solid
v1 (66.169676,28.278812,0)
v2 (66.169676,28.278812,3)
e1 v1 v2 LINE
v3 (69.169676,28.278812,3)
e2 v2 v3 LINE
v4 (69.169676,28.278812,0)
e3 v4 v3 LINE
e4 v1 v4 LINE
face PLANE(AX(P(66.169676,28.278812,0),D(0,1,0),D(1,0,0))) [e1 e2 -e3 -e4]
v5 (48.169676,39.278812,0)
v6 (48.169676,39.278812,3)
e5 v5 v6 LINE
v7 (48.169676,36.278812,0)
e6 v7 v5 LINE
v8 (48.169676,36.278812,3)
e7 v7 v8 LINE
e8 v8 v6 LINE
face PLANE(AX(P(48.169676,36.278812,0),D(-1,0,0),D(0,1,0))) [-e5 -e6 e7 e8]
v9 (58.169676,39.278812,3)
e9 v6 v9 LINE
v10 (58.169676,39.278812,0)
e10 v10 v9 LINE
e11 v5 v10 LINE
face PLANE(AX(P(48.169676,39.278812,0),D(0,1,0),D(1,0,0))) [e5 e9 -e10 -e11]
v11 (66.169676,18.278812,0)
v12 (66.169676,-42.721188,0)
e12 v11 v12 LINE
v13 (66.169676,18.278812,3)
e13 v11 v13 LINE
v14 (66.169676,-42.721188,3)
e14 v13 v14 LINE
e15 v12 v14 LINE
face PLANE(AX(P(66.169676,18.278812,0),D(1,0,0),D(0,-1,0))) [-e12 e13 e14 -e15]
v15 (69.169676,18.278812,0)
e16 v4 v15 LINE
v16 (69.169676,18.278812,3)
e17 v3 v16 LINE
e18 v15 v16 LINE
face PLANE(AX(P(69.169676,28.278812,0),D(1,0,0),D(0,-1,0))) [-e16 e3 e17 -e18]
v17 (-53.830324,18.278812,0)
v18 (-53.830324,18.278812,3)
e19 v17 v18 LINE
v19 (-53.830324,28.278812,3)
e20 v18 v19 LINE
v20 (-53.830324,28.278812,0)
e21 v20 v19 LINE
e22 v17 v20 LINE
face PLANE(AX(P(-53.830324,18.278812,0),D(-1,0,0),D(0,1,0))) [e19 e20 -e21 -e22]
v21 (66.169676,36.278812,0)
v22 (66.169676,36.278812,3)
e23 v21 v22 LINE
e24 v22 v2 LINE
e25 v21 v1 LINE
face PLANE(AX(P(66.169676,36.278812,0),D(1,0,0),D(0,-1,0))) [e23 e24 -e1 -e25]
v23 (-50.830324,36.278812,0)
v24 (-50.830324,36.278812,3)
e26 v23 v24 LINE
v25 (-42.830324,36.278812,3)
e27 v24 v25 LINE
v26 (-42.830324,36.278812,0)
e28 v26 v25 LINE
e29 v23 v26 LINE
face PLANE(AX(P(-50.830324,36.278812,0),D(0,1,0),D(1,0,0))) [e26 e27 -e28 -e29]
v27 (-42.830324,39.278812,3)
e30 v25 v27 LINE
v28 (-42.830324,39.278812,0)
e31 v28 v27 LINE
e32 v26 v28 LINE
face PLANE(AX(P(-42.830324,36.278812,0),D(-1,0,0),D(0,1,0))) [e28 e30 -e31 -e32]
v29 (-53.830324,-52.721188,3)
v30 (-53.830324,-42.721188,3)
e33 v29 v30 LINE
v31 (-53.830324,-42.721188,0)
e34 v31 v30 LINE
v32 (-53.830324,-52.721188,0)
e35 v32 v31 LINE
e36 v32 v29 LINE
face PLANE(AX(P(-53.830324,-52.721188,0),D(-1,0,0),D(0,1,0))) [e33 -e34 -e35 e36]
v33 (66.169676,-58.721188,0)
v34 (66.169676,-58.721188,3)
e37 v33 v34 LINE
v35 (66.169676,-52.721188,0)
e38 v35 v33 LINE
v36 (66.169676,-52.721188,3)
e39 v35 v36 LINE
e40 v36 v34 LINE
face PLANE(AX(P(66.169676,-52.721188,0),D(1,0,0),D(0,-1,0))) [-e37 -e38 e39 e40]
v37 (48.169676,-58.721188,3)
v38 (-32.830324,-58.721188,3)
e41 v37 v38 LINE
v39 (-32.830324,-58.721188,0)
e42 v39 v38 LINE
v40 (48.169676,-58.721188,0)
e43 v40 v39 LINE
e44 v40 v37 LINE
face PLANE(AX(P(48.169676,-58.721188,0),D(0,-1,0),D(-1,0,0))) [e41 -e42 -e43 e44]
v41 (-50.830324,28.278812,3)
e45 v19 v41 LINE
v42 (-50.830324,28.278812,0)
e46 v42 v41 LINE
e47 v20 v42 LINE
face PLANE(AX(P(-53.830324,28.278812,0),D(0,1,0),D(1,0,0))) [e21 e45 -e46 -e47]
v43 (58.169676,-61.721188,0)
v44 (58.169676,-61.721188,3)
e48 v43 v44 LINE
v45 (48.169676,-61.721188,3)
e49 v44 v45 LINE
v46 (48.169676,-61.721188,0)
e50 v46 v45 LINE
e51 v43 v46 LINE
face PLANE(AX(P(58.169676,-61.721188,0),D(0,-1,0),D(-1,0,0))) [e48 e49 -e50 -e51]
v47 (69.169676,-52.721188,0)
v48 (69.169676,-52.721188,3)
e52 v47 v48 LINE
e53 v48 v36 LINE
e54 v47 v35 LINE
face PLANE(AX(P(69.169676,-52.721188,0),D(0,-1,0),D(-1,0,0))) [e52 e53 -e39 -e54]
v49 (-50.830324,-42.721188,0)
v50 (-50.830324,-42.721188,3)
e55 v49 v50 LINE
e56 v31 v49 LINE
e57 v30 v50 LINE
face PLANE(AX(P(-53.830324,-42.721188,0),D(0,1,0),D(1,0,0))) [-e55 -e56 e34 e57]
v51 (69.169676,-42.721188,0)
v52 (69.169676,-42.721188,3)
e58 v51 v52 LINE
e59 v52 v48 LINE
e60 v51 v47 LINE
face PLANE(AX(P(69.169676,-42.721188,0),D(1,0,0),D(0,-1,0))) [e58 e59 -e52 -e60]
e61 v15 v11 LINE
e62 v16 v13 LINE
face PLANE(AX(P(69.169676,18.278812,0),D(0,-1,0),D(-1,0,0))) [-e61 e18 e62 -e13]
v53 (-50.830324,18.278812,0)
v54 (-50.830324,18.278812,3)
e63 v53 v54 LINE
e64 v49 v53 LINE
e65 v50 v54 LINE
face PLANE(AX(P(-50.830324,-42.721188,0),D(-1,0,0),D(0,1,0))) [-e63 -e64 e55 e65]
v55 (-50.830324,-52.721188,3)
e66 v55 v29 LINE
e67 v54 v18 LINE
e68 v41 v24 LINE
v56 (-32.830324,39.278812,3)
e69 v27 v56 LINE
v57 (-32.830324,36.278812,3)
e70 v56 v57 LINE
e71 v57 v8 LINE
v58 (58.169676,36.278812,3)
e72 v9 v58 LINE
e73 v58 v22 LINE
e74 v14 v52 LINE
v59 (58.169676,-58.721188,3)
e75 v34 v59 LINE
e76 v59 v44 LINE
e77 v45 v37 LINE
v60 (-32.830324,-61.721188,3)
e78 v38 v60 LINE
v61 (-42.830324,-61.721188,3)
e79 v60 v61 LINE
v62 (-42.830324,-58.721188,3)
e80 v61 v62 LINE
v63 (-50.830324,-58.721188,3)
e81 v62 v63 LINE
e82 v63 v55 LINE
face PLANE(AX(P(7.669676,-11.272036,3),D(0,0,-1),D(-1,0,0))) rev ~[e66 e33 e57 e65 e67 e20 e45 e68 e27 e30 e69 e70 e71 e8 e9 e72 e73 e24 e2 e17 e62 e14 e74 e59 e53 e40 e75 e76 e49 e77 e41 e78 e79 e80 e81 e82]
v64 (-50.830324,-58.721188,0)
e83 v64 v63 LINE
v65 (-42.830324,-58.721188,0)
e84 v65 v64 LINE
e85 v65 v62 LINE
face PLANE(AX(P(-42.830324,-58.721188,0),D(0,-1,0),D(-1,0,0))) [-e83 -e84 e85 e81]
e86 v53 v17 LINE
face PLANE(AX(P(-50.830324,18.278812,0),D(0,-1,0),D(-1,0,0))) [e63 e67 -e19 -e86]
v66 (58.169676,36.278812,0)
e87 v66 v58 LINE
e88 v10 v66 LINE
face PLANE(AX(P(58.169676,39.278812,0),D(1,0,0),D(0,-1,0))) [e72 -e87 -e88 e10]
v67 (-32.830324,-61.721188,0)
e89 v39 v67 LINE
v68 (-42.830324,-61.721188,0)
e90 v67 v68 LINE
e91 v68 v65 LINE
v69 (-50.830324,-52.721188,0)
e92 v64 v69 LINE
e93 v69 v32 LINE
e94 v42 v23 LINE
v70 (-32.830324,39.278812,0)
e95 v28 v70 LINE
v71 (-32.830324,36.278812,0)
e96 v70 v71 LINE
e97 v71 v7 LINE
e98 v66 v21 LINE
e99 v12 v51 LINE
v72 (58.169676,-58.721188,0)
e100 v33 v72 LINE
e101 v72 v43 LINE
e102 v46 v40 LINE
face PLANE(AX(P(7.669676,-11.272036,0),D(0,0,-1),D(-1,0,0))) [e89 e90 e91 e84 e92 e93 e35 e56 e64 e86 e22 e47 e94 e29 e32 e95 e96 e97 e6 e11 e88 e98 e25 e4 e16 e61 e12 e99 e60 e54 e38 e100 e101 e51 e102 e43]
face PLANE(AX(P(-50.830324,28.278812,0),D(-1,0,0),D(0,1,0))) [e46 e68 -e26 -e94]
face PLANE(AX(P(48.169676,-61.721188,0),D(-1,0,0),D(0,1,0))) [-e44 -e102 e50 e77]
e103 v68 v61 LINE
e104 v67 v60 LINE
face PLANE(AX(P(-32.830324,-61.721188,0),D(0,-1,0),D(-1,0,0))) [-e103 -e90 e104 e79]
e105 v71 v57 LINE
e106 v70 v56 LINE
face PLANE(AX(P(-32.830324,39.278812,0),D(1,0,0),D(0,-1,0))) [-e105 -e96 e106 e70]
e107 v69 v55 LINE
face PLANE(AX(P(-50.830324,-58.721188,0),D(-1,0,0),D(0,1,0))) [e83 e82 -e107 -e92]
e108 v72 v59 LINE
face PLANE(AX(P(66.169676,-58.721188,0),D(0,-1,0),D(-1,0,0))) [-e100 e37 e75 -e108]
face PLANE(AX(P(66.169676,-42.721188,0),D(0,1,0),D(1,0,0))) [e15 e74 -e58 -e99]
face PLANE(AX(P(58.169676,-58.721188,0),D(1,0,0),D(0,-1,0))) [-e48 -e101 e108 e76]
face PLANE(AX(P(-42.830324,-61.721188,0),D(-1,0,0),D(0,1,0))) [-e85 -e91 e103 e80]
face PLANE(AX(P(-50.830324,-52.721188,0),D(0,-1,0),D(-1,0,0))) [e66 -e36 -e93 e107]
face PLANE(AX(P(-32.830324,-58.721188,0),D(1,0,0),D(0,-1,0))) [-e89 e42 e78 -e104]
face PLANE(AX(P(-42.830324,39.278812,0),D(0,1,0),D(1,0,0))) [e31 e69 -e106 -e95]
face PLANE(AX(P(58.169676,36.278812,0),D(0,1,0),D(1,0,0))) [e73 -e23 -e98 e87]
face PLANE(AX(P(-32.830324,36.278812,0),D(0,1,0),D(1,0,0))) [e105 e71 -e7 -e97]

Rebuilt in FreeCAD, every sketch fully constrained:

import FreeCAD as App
import Part
import Sketcher
Q = App.Units.Quantity

doc = App.newDocument("Part")
body = doc.addObject("PartDesign::Body", "Body")

# Sketch on XY plane
sketch1 = body.newObject("Sketcher::SketchObject", "Sketch")
sketch1.AttachmentSupport = (doc.getObject("XY_Plane"), [""])
sketch1.MapMode = "FlatFace"
sketch1.addGeometry([
    Part.LineSegment(App.Vector(-42.830324, 36.278812, 0), App.Vector(-50.830324, 36.278812, 0)),  # 0
    Part.LineSegment(App.Vector(-50.830324, 36.278812, 0), App.Vector(-50.830324, 28.278812, 0)),  # 1
    Part.LineSegment(App.Vector(-50.830324, 28.278812, 0), App.Vector(-53.830324, 28.278812, 0)),  # 2
    Part.LineSegment(App.Vector(-53.830324, 28.278812, 0), App.Vector(-53.830324, 18.278812, 0)),  # 3
    Part.LineSegment(App.Vector(-53.830324, 18.278812, 0), App.Vector(-50.830324, 18.278812, 0)),  # 4
    Part.LineSegment(App.Vector(-50.830324, 18.278812, 0), App.Vector(-50.830324, -42.721188, 0)),  # 5
    Part.LineSegment(App.Vector(-50.830324, -42.721188, 0), App.Vector(-53.830324, -42.721188, 0)),  # 6
    Part.LineSegment(App.Vector(-53.830324, -42.721188, 0), App.Vector(-53.830324, -52.721188, 0)),  # 7
    Part.LineSegment(App.Vector(-53.830324, -52.721188, 0), App.Vector(-50.830324, -52.721188, 0)),  # 8
    Part.LineSegment(App.Vector(-50.830324, -52.721188, 0), App.Vector(-50.830324, -58.721188, 0)),  # 9
    Part.LineSegment(App.Vector(-50.830324, -58.721188, 0), App.Vector(-42.830324, -58.721188, 0)),  # 10
    Part.LineSegment(App.Vector(-42.830324, -58.721188, 0), App.Vector(-42.830324, -61.721188, 0)),  # 11
    Part.LineSegment(App.Vector(-42.830324, -61.721188, 0), App.Vector(-32.830324, -61.721188, 0)),  # 12
    Part.LineSegment(App.Vector(-32.830324, -61.721188, 0), App.Vector(-32.830324, -58.721188, 0)),  # 13
    Part.LineSegment(App.Vector(-32.830324, -58.721188, 0), App.Vector(48.169676, -58.721188, 0)),  # 14
    Part.LineSegment(App.Vector(48.169676, -58.721188, 0), App.Vector(48.169676, -61.721188, 0)),  # 15
    Part.LineSegment(App.Vector(48.169676, -61.721188, 0), App.Vector(58.169676, -61.721188, 0)),  # 16
    Part.LineSegment(App.Vector(58.169676, -61.721188, 0), App.Vector(58.169676, -58.721188, 0)),  # 17
    Part.LineSegment(App.Vector(58.169676, -58.721188, 0), App.Vector(66.169676, -58.721188, 0)),  # 18
    Part.LineSegment(App.Vector(66.169676, -58.721188, 0), App.Vector(66.169676, -52.721188, 0)),  # 19
    Part.LineSegment(App.Vector(66.169676, -52.721188, 0), App.Vector(69.169676, -52.721188, 0)),  # 20
    Part.LineSegment(App.Vector(69.169676, -52.721188, 0), App.Vector(69.169676, -42.721188, 0)),  # 21
    Part.LineSegment(App.Vector(69.169676, -42.721188, 0), App.Vector(66.169676, -42.721188, 0)),  # 22
    Part.LineSegment(App.Vector(66.169676, -42.721188, 0), App.Vector(66.169676, 18.278812, 0)),  # 23
    Part.LineSegment(App.Vector(66.169676, 18.278812, 0), App.Vector(69.169676, 18.278812, 0)),  # 24
    Part.LineSegment(App.Vector(69.169676, 18.278812, 0), App.Vector(69.169676, 28.278812, 0)),  # 25
    Part.LineSegment(App.Vector(69.169676, 28.278812, 0), App.Vector(66.169676, 28.278812, 0)),  # 26
    Part.LineSegment(App.Vector(66.169676, 28.278812, 0), App.Vector(66.169676, 36.278812, 0)),  # 27
    Part.LineSegment(App.Vector(66.169676, 36.278812, 0), App.Vector(58.169676, 36.278812, 0)),  # 28
    Part.LineSegment(App.Vector(58.169676, 36.278812, 0), App.Vector(58.169676, 39.278812, 0)),  # 29
    Part.LineSegment(App.Vector(58.169676, 39.278812, 0), App.Vector(48.169676, 39.278812, 0)),  # 30
    Part.LineSegment(App.Vector(48.169676, 39.278812, 0), App.Vector(48.169676, 36.278812, 0)),  # 31
    Part.LineSegment(App.Vector(48.169676, 36.278812, 0), App.Vector(-32.830324, 36.278812, 0)),  # 32
    Part.LineSegment(App.Vector(-32.830324, 36.278812, 0), App.Vector(-32.830324, 39.278812, 0)),  # 33
    Part.LineSegment(App.Vector(-32.830324, 39.278812, 0), App.Vector(-42.830324, 39.278812, 0)),  # 34
    Part.LineSegment(App.Vector(-42.830324, 39.278812, 0), App.Vector(-42.830324, 36.278812, 0)),  # 35
], False)
sketch1.addConstraint([
    Sketcher.Constraint("Coincident", 0, 2, 1, 1),
    Sketcher.Constraint("Coincident", 1, 2, 2, 1),
    Sketcher.Constraint("Coincident", 2, 2, 3, 1),
    Sketcher.Constraint("Coincident", 3, 2, 4, 1),
    Sketcher.Constraint("Coincident", 4, 2, 5, 1),
    Sketcher.Constraint("Coincident", 5, 2, 6, 1),
    Sketcher.Constraint("Coincident", 6, 2, 7, 1),
    Sketcher.Constraint("Coincident", 7, 2, 8, 1),
    Sketcher.Constraint("Coincident", 8, 2, 9, 1),
    Sketcher.Constraint("Coincident", 9, 2, 10, 1),
    Sketcher.Constraint("Coincident", 10, 2, 11, 1),
    Sketcher.Constraint("Coincident", 11, 2, 12, 1),
    Sketcher.Constraint("Coincident", 12, 2, 13, 1),
    Sketcher.Constraint("Coincident", 13, 2, 14, 1),
    Sketcher.Constraint("Coincident", 14, 2, 15, 1),
    Sketcher.Constraint("Coincident", 15, 2, 16, 1),
    Sketcher.Constraint("Coincident", 16, 2, 17, 1),
    Sketcher.Constraint("Coincident", 17, 2, 18, 1),
    Sketcher.Constraint("Coincident", 18, 2, 19, 1),
    Sketcher.Constraint("Coincident", 19, 2, 20, 1),
    Sketcher.Constraint("Coincident", 20, 2, 21, 1),
    Sketcher.Constraint("Coincident", 21, 2, 22, 1),
    Sketcher.Constraint("Coincident", 22, 2, 23, 1),
    Sketcher.Constraint("Coincident", 23, 2, 24, 1),
    Sketcher.Constraint("Coincident", 24, 2, 25, 1),
    Sketcher.Constraint("Coincident", 25, 2, 26, 1),
    Sketcher.Constraint("Coincident", 26, 2, 27, 1),
    Sketcher.Constraint("Coincident", 27, 2, 28, 1),
    Sketcher.Constraint("Coincident", 28, 2, 29, 1),
    Sketcher.Constraint("Coincident", 29, 2, 30, 1),
    Sketcher.Constraint("Coincident", 30, 2, 31, 1),
    Sketcher.Constraint("Coincident", 31, 2, 32, 1),
    Sketcher.Constraint("Coincident", 32, 2, 33, 1),
    Sketcher.Constraint("Coincident", 33, 2, 34, 1),
    Sketcher.Constraint("Coincident", 34, 2, 35, 1),
    Sketcher.Constraint("Coincident", 35, 2, 0, 1),
    Sketcher.Constraint("Horizontal", 0),
    Sketcher.Constraint("Vertical", 1),
    Sketcher.Constraint("Horizontal", 2),
    Sketcher.Constraint("Vertical", 3),
    Sketcher.Constraint("Horizontal", 4),
    Sketcher.Constraint("Vertical", 5),
    Sketcher.Constraint("Horizontal", 6),
    Sketcher.Constraint("Vertical", 7),
    Sketcher.Constraint("Horizontal", 8),
    Sketcher.Constraint("Vertical", 9),
    Sketcher.Constraint("Horizontal", 10),
    Sketcher.Constraint("Vertical", 11),
    Sketcher.Constraint("Horizontal", 12),
    Sketcher.Constraint("Vertical", 13),
    Sketcher.Constraint("Horizontal", 14),
    Sketcher.Constraint("Vertical", 15),
    Sketcher.Constraint("Horizontal", 16),
    Sketcher.Constraint("Vertical", 17),
    Sketcher.Constraint("Horizontal", 18),
    Sketcher.Constraint("Vertical", 19),
    Sketcher.Constraint("Horizontal", 20),
    Sketcher.Constraint("Vertical", 21),
    Sketcher.Constraint("Horizontal", 22),
    Sketcher.Constraint("Vertical", 23),
    Sketcher.Constraint("Horizontal", 24),
    Sketcher.Constraint("Vertical", 25),
    Sketcher.Constraint("Horizontal", 26),
    Sketcher.Constraint("Vertical", 27),
    Sketcher.Constraint("Horizontal", 28),
    Sketcher.Constraint("Vertical", 29),
    Sketcher.Constraint("Horizontal", 30),
    Sketcher.Constraint("Vertical", 31),
    Sketcher.Constraint("Horizontal", 32),
    Sketcher.Constraint("Vertical", 33),
    Sketcher.Constraint("Horizontal", 34),
    Sketcher.Constraint("Vertical", 35),
    Sketcher.Constraint("Horizontal", 10, 2, 13, 2),
    Sketcher.Constraint("Horizontal", 12, 2, 15, 2),
    Sketcher.Constraint("Horizontal", 14, 2, 17, 2),
    Sketcher.Constraint("Horizontal", 8, 2, 19, 2),
    Sketcher.Constraint("Horizontal", 6, 2, 21, 2),
    Sketcher.Constraint("Horizontal", 4, 2, 23, 2),
    Sketcher.Constraint("Horizontal", 2, 2, 25, 2),
    Sketcher.Constraint("Horizontal", 0, 2, 27, 2),
    Sketcher.Constraint("Horizontal", 28, 2, 31, 2),
    Sketcher.Constraint("Horizontal", 30, 2, 33, 2),
    Sketcher.Constraint("Vertical", 1, 2, 4, 2),
    Sketcher.Constraint("Vertical", 3, 2, 6, 2),
    Sketcher.Constraint("Vertical", 5, 2, 8, 2),
    Sketcher.Constraint("Vertical", 19, 2, 22, 2),
    Sketcher.Constraint("Vertical", 21, 2, 24, 2),
    Sketcher.Constraint("Vertical", 23, 2, 26, 2),
    Sketcher.Constraint("Vertical", 17, 2, 28, 2),
    Sketcher.Constraint("Vertical", 15, 2, 30, 2),
    Sketcher.Constraint("Vertical", 13, 2, 32, 2),
    Sketcher.Constraint("Vertical", 11, 2, 34, 2),
    Sketcher.Constraint("Equal", 12, 16),
    Sketcher.Constraint("Equal", 10, 18),
    Sketcher.Constraint("Equal", 8, 20),
    Sketcher.Constraint("Equal", 28, 1),
    Sketcher.Constraint("Equal", 34, 3),
    Sketcher.Constraint("Equal", 3, 7),
    Sketcher.Constraint("Equal", 26, 11),
    Sketcher.Constraint("Equal", 17, 29),
    Sketcher.Constraint("DistanceX", 0, 2, 0, 1, Q("8 mm")),
    Sketcher.Constraint("DistanceX", 2, 2, 2, 1, Q("3 mm")),
    Sketcher.Constraint("DistanceX", 12, 1, 12, 2, Q("10 mm")),
    Sketcher.Constraint("DistanceX", 14, 1, 14, 2, Q("81 mm")),
    Sketcher.Constraint("DistanceY", 5, 2, 5, 1, Q("61 mm")),
    Sketcher.Constraint("DistanceY", 9, 2, 9, 1, Q("6 mm")),
    Sketcher.Constraint("DistanceY", -1, 1, 0, 2, Q("36.278812 mm")),
    Sketcher.Constraint("DistanceX", 0, 2, -1, 1, Q("50.830324 mm")),
])
pad1 = body.newObject("PartDesign::Pad", "Pad")
pad1.Profile = sketch1
pad1.Length = 3

doc.recompute()
